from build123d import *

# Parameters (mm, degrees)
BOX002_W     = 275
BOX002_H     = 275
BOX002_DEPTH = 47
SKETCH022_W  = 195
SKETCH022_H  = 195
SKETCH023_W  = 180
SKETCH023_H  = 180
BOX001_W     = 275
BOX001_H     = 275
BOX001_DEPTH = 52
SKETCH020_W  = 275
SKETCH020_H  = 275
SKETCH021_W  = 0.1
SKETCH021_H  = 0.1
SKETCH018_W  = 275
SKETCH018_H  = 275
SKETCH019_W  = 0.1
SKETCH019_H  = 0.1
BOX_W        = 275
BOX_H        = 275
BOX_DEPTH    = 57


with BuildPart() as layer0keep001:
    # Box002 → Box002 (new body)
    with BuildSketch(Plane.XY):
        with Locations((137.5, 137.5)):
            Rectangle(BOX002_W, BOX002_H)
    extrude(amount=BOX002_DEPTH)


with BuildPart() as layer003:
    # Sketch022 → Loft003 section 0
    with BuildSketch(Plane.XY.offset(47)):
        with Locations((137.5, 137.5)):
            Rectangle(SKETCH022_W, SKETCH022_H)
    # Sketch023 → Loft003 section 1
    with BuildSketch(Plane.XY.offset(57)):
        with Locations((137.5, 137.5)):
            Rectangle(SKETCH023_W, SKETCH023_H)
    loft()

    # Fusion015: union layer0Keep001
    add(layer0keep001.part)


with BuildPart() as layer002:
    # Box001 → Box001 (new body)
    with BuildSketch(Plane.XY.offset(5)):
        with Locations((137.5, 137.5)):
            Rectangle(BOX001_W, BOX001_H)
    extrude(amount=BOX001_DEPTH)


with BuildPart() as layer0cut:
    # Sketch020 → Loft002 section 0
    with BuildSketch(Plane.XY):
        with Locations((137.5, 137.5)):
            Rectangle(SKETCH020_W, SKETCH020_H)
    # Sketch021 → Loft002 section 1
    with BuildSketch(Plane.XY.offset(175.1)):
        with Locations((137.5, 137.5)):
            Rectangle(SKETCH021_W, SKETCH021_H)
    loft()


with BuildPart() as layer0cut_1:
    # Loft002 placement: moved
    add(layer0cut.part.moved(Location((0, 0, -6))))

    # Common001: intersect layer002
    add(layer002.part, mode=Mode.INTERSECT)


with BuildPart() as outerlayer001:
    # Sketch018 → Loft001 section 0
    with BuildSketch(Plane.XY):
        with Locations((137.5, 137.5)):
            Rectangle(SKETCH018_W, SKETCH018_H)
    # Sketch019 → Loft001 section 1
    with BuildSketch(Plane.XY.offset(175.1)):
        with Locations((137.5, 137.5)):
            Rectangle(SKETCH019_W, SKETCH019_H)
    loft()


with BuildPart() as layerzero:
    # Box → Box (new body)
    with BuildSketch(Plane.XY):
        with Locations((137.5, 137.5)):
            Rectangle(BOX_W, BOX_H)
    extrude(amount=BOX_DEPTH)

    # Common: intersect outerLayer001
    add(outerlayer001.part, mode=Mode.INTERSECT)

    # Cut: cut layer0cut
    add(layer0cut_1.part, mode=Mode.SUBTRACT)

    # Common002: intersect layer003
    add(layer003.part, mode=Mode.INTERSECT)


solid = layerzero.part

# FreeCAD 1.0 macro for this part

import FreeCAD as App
import Part
import Sketcher

doc = App.newDocument("Part")
body = doc.addObject("PartDesign::Body", "Body")

sketch1 = body.newObject("Sketcher::SketchObject", "Sketch")
sketch1.AttachmentSupport = (doc.getObject("XY_Plane"), [""])
sketch1.MapMode = "FlatFace"
sketch1.addGeometry(Part.LineSegment(App.Vector(0, 275, 0), App.Vector(0, 0, 0)), False)
sketch1.addGeometry(Part.LineSegment(App.Vector(0, 0, 0), App.Vector(275, 0, 0)), False)
sketch1.addGeometry(Part.LineSegment(App.Vector(275, 0, 0), App.Vector(275, 275, 0)), False)
sketch1.addGeometry(Part.LineSegment(App.Vector(275, 275, 0), App.Vector(0, 275, 0)), False)
sketch1.addConstraint(Sketcher.Constraint("Coincident", 0, 2, 1, 1))
sketch1.addConstraint(Sketcher.Constraint("Coincident", 1, 2, 2, 1))
sketch1.addConstraint(Sketcher.Constraint("Coincident", 2, 2, 3, 1))
sketch1.addConstraint(Sketcher.Constraint("Coincident", 3, 2, 0, 1))
sketch1.addConstraint(Sketcher.Constraint("Vertical", 0))
sketch1.addConstraint(Sketcher.Constraint("Horizontal", 1))
sketch1.addConstraint(Sketcher.Constraint("Vertical", 2))
sketch1.addConstraint(Sketcher.Constraint("Horizontal", 3))
sketch1.addConstraint(Sketcher.Constraint("Coincident", 0, 2, -1, 1))
sketch1.addConstraint(Sketcher.Constraint("Equal", 3, 0))
sketch1.addConstraint(Sketcher.Constraint("DistanceX", 1, 1, 1, 2, 275.0))
pad1 = body.newObject("PartDesign::Pad", "Pad")
pad1.Profile = sketch1
pad1.Length = 47
body2 = doc.addObject("PartDesign::Body", "Body001")

sketch2 = body2.newObject("Sketcher::SketchObject", "Sketch001")
sketch2.AttachmentSupport = (doc.getObject("XY_Plane001"), [""])
sketch2.MapMode = "FlatFace"
sketch2.AttachmentOffset = App.Placement(App.Vector(0, 0, 47), App.Rotation())
sketch2.addGeometry(Part.LineSegment(App.Vector(40, 235, 0), App.Vector(40, 40, 0)), False)
sketch2.addGeometry(Part.LineSegment(App.Vector(40, 40, 0), App.Vector(235, 40, 0)), False)
sketch2.addGeometry(Part.LineSegment(App.Vector(235, 40, 0), App.Vector(235, 235, 0)), False)
sketch2.addGeometry(Part.LineSegment(App.Vector(235, 235, 0), App.Vector(40, 235, 0)), False)
sketch2.addConstraint(Sketcher.Constraint("Coincident", 0, 2, 1, 1))
sketch2.addConstraint(Sketcher.Constraint("Coincident", 1, 2, 2, 1))
sketch2.addConstraint(Sketcher.Constraint("Coincident", 2, 2, 3, 1))
sketch2.addConstraint(Sketcher.Constraint("Coincident", 3, 2, 0, 1))
sketch2.addConstraint(Sketcher.Constraint("Vertical", 0))
sketch2.addConstraint(Sketcher.Constraint("Horizontal", 1))
sketch2.addConstraint(Sketcher.Constraint("Vertical", 2))
sketch2.addConstraint(Sketcher.Constraint("Horizontal", 3))
sketch2.addConstraint(Sketcher.Constraint("Equal", 3, 0))
sketch2.addConstraint(Sketcher.Constraint("DistanceX", 1, 1, 1, 2, 195.0))
sketch2.addConstraint(Sketcher.Constraint("DistanceX", -1, 1, 0, 2, 40.0))
sketch2.addConstraint(Sketcher.Constraint("DistanceY", -1, 1, 0, 2, 40.0))

sketch3 = body2.newObject("Sketcher::SketchObject", "Sketch002")
sketch3.AttachmentSupport = (doc.getObject("XY_Plane001"), [""])
sketch3.MapMode = "FlatFace"
sketch3.AttachmentOffset = App.Placement(App.Vector(0, 0, 57), App.Rotation())
sketch3.addGeometry(Part.LineSegment(App.Vector(47.5, 227.5, 0), App.Vector(47.5, 47.5, 0)), False)
sketch3.addGeometry(Part.LineSegment(App.Vector(47.5, 47.5, 0), App.Vector(227.5, 47.5, 0)), False)
sketch3.addGeometry(Part.LineSegment(App.Vector(227.5, 47.5, 0), App.Vector(227.5, 227.5, 0)), False)
sketch3.addGeometry(Part.LineSegment(App.Vector(227.5, 227.5, 0), App.Vector(47.5, 227.5, 0)), False)
sketch3.addConstraint(Sketcher.Constraint("Coincident", 0, 2, 1, 1))
sketch3.addConstraint(Sketcher.Constraint("Coincident", 1, 2, 2, 1))
sketch3.addConstraint(Sketcher.Constraint("Coincident", 2, 2, 3, 1))
sketch3.addConstraint(Sketcher.Constraint("Coincident", 3, 2, 0, 1))
sketch3.addConstraint(Sketcher.Constraint("Vertical", 0))
sketch3.addConstraint(Sketcher.Constraint("Horizontal", 1))
sketch3.addConstraint(Sketcher.Constraint("Vertical", 2))
sketch3.addConstraint(Sketcher.Constraint("Horizontal", 3))
sketch3.addConstraint(Sketcher.Constraint("Equal", 3, 0))
sketch3.addConstraint(Sketcher.Constraint("DistanceX", 1, 1, 1, 2, 180.0))
sketch3.addConstraint(Sketcher.Constraint("DistanceX", -1, 1, 0, 2, 47.5))
sketch3.addConstraint(Sketcher.Constraint("DistanceY", -1, 1, 0, 2, 47.5))

additiveloft = body2.newObject("PartDesign::AdditiveLoft", "AdditiveLoft")
additiveloft.Profile = sketch2
additiveloft.Sections = [sketch3]
doc.recompute()

boolean = body2.newObject("PartDesign::Boolean", "Boolean")
boolean.Type = "Fuse"
boolean.addObjects([body])
body3 = doc.addObject("PartDesign::Body", "Body002")

sketch4 = body3.newObject("Sketcher::SketchObject", "Sketch003")
sketch4.AttachmentSupport = (doc.getObject("XY_Plane002"), [""])
sketch4.MapMode = "FlatFace"
sketch4.AttachmentOffset = App.Placement(App.Vector(0, 0, 5), App.Rotation())
sketch4.addGeometry(Part.LineSegment(App.Vector(0, 275, 0), App.Vector(0, 0, 0)), False)
sketch4.addGeometry(Part.LineSegment(App.Vector(0, 0, 0), App.Vector(275, 0, 0)), False)
sketch4.addGeometry(Part.LineSegment(App.Vector(275, 0, 0), App.Vector(275, 275, 0)), False)
sketch4.addGeometry(Part.LineSegment(App.Vector(275, 275, 0), App.Vector(0, 275, 0)), False)
sketch4.addConstraint(Sketcher.Constraint("Coincident", 0, 2, 1, 1))
sketch4.addConstraint(Sketcher.Constraint("Coincident", 1, 2, 2, 1))
sketch4.addConstraint(Sketcher.Constraint("Coincident", 2, 2, 3, 1))
sketch4.addConstraint(Sketcher.Constraint("Coincident", 3, 2, 0, 1))
sketch4.addConstraint(Sketcher.Constraint("Vertical", 0))
sketch4.addConstraint(Sketcher.Constraint("Horizontal", 1))
sketch4.addConstraint(Sketcher.Constraint("Vertical", 2))
sketch4.addConstraint(Sketcher.Constraint("Horizontal", 3))
sketch4.addConstraint(Sketcher.Constraint("Coincident", 0, 2, -1, 1))
sketch4.addConstraint(Sketcher.Constraint("Equal", 3, 0))
sketch4.addConstraint(Sketcher.Constraint("DistanceX", 1, 1, 1, 2, 275.0))
pad2 = body3.newObject("PartDesign::Pad", "Pad001")
pad2.Profile = sketch4
pad2.Length = 52
body4 = doc.addObject("PartDesign::Body", "Body003")

sketch5 = body4.newObject("Sketcher::SketchObject", "Sketch004")
sketch5.AttachmentSupport = (doc.getObject("XY_Plane003"), [""])
sketch5.MapMode = "FlatFace"
sketch5.addGeometry(Part.LineSegment(App.Vector(0, 275, 0), App.Vector(0, 0, 0)), False)
sketch5.addGeometry(Part.LineSegment(App.Vector(0, 0, 0), App.Vector(275, 0, 0)), False)
sketch5.addGeometry(Part.LineSegment(App.Vector(275, 0, 0), App.Vector(275, 275, 0)), False)
sketch5.addGeometry(Part.LineSegment(App.Vector(275, 275, 0), App.Vector(0, 275, 0)), False)
sketch5.addConstraint(Sketcher.Constraint("Coincident", 0, 2, 1, 1))
sketch5.addConstraint(Sketcher.Constraint("Coincident", 1, 2, 2, 1))
sketch5.addConstraint(Sketcher.Constraint("Coincident", 2, 2, 3, 1))
sketch5.addConstraint(Sketcher.Constraint("Coincident", 3, 2, 0, 1))
sketch5.addConstraint(Sketcher.Constraint("Vertical", 0))
sketch5.addConstraint(Sketcher.Constraint("Horizontal", 1))
sketch5.addConstraint(Sketcher.Constraint("Vertical", 2))
sketch5.addConstraint(Sketcher.Constraint("Horizontal", 3))
sketch5.addConstraint(Sketcher.Constraint("Coincident", 0, 2, -1, 1))
sketch5.addConstraint(Sketcher.Constraint("Equal", 3, 0))
sketch5.addConstraint(Sketcher.Constraint("DistanceX", 1, 1, 1, 2, 275.0))

sketch6 = body4.newObject("Sketcher::SketchObject", "Sketch005")
sketch6.AttachmentSupport = (doc.getObject("XY_Plane003"), [""])
sketch6.MapMode = "FlatFace"
sketch6.AttachmentOffset = App.Placement(App.Vector(0, 0, 175.1), App.Rotation())
sketch6.addGeometry(Part.LineSegment(App.Vector(137.45, 137.55, 0), App.Vector(137.45, 137.45, 0)), False)
sketch6.addGeometry(Part.LineSegment(App.Vector(137.45, 137.45, 0), App.Vector(137.55, 137.45, 0)), False)
sketch6.addGeometry(Part.LineSegment(App.Vector(137.55, 137.45, 0), App.Vector(137.55, 137.55, 0)), False)
sketch6.addGeometry(Part.LineSegment(App.Vector(137.55, 137.55, 0), App.Vector(137.45, 137.55, 0)), False)
sketch6.addConstraint(Sketcher.Constraint("Coincident", 0, 2, 1, 1))
sketch6.addConstraint(Sketcher.Constraint("Coincident", 1, 2, 2, 1))
sketch6.addConstraint(Sketcher.Constraint("Coincident", 2, 2, 3, 1))
sketch6.addConstraint(Sketcher.Constraint("Coincident", 3, 2, 0, 1))
sketch6.addConstraint(Sketcher.Constraint("Vertical", 0))
sketch6.addConstraint(Sketcher.Constraint("Horizontal", 1))
sketch6.addConstraint(Sketcher.Constraint("Vertical", 2))
sketch6.addConstraint(Sketcher.Constraint("Horizontal", 3))
sketch6.addConstraint(Sketcher.Constraint("Equal", 3, 0))
sketch6.addConstraint(Sketcher.Constraint("DistanceX", 1, 1, 1, 2, 0.1))
sketch6.addConstraint(Sketcher.Constraint("DistanceX", -1, 1, 0, 2, 137.45))
sketch6.addConstraint(Sketcher.Constraint("DistanceY", -1, 1, 0, 2, 137.45))

additiveloft2 = body4.newObject("PartDesign::AdditiveLoft", "AdditiveLoft001")
additiveloft2.Profile = sketch5
additiveloft2.Sections = [sketch6]
body5 = doc.addObject("PartDesign::Body", "Body004")
doc.recompute()

body4.Placement = App.Placement(App.Vector(0, 0, -6), App.Rotation(App.Vector(0, 0, 1), 0))
boolean2 = body5.newObject("PartDesign::Boolean", "Boolean001")
boolean2.Type = "Fuse"
boolean2.addObjects([body4])
doc.recompute()

boolean3 = body5.newObject("PartDesign::Boolean", "Boolean002")
boolean3.Type = "Common"
boolean3.addObjects([body3])
body6 = doc.addObject("PartDesign::Body", "Body005")

sketch7 = body6.newObject("Sketcher::SketchObject", "Sketch006")
sketch7.AttachmentSupport = (doc.getObject("XY_Plane005"), [""])
sketch7.MapMode = "FlatFace"
sketch7.addGeometry(Part.LineSegment(App.Vector(0, 275, 0), App.Vector(0, 0, 0)), False)
sketch7.addGeometry(Part.LineSegment(App.Vector(0, 0, 0), App.Vector(275, 0, 0)), False)
sketch7.addGeometry(Part.LineSegment(App.Vector(275, 0, 0), App.Vector(275, 275, 0)), False)
sketch7.addGeometry(Part.LineSegment(App.Vector(275, 275, 0), App.Vector(0, 275, 0)), False)
sketch7.addConstraint(Sketcher.Constraint("Coincident", 0, 2, 1, 1))
sketch7.addConstraint(Sketcher.Constraint("Coincident", 1, 2, 2, 1))
sketch7.addConstraint(Sketcher.Constraint("Coincident", 2, 2, 3, 1))
sketch7.addConstraint(Sketcher.Constraint("Coincident", 3, 2, 0, 1))
sketch7.addConstraint(Sketcher.Constraint("Vertical", 0))
sketch7.addConstraint(Sketcher.Constraint("Horizontal", 1))
sketch7.addConstraint(Sketcher.Constraint("Vertical", 2))
sketch7.addConstraint(Sketcher.Constraint("Horizontal", 3))
sketch7.addConstraint(Sketcher.Constraint("Coincident", 0, 2, -1, 1))
sketch7.addConstraint(Sketcher.Constraint("Equal", 3, 0))
sketch7.addConstraint(Sketcher.Constraint("DistanceX", 1, 1, 1, 2, 275.0))

sketch8 = body6.newObject("Sketcher::SketchObject", "Sketch007")
sketch8.AttachmentSupport = (doc.getObject("XY_Plane005"), [""])
sketch8.MapMode = "FlatFace"
sketch8.AttachmentOffset = App.Placement(App.Vector(0, 0, 175.1), App.Rotation())
sketch8.addGeometry(Part.LineSegment(App.Vector(137.45, 137.55, 0), App.Vector(137.45, 137.45, 0)), False)
sketch8.addGeometry(Part.LineSegment(App.Vector(137.45, 137.45, 0), App.Vector(137.55, 137.45, 0)), False)
sketch8.addGeometry(Part.LineSegment(App.Vector(137.55, 137.45, 0), App.Vector(137.55, 137.55, 0)), False)
sketch8.addGeometry(Part.LineSegment(App.Vector(137.55, 137.55, 0), App.Vector(137.45, 137.55, 0)), False)
sketch8.addConstraint(Sketcher.Constraint("Coincident", 0, 2, 1, 1))
sketch8.addConstraint(Sketcher.Constraint("Coincident", 1, 2, 2, 1))
sketch8.addConstraint(Sketcher.Constraint("Coincident", 2, 2, 3, 1))
sketch8.addConstraint(Sketcher.Constraint("Coincident", 3, 2, 0, 1))
sketch8.addConstraint(Sketcher.Constraint("Vertical", 0))
sketch8.addConstraint(Sketcher.Constraint("Horizontal", 1))
sketch8.addConstraint(Sketcher.Constraint("Vertical", 2))
sketch8.addConstraint(Sketcher.Constraint("Horizontal", 3))
sketch8.addConstraint(Sketcher.Constraint("Equal", 3, 0))
sketch8.addConstraint(Sketcher.Constraint("DistanceX", 1, 1, 1, 2, 0.1))
sketch8.addConstraint(Sketcher.Constraint("DistanceX", -1, 1, 0, 2, 137.45))
sketch8.addConstraint(Sketcher.Constraint("DistanceY", -1, 1, 0, 2, 137.45))

additiveloft3 = body6.newObject("PartDesign::AdditiveLoft", "AdditiveLoft002")
additiveloft3.Profile = sketch7
additiveloft3.Sections = [sketch8]
body7 = doc.addObject("PartDesign::Body", "Body006")

sketch9 = body7.newObject("Sketcher::SketchObject", "Sketch008")
sketch9.AttachmentSupport = (doc.getObject("XY_Plane006"), [""])
sketch9.MapMode = "FlatFace"
sketch9.addGeometry(Part.LineSegment(App.Vector(0, 275, 0), App.Vector(0, 0, 0)), False)
sketch9.addGeometry(Part.LineSegment(App.Vector(0, 0, 0), App.Vector(275, 0, 0)), False)
sketch9.addGeometry(Part.LineSegment(App.Vector(275, 0, 0), App.Vector(275, 275, 0)), False)
sketch9.addGeometry(Part.LineSegment(App.Vector(275, 275, 0), App.Vector(0, 275, 0)), False)
sketch9.addConstraint(Sketcher.Constraint("Coincident", 0, 2, 1, 1))
sketch9.addConstraint(Sketcher.Constraint("Coincident", 1, 2, 2, 1))
sketch9.addConstraint(Sketcher.Constraint("Coincident", 2, 2, 3, 1))
sketch9.addConstraint(Sketcher.Constraint("Coincident", 3, 2, 0, 1))
sketch9.addConstraint(Sketcher.Constraint("Vertical", 0))
sketch9.addConstraint(Sketcher.Constraint("Horizontal", 1))
sketch9.addConstraint(Sketcher.Constraint("Vertical", 2))
sketch9.addConstraint(Sketcher.Constraint("Horizontal", 3))
sketch9.addConstraint(Sketcher.Constraint("Coincident", 0, 2, -1, 1))
sketch9.addConstraint(Sketcher.Constraint("Equal", 3, 0))
sketch9.addConstraint(Sketcher.Constraint("DistanceX", 1, 1, 1, 2, 275.0))
pad3 = body7.newObject("PartDesign::Pad", "Pad002")
pad3.Profile = sketch9
pad3.Length = 57
doc.recompute()

boolean4 = body7.newObject("PartDesign::Boolean", "Boolean003")
boolean4.Type = "Common"
boolean4.addObjects([body6])
doc.recompute()

boolean5 = body7.newObject("PartDesign::Boolean", "Boolean004")
boolean5.Type = "Cut"
boolean5.addObjects([body5])
doc.recompute()

boolean6 = body7.newObject("PartDesign::Boolean", "Boolean005")
boolean6.Type = "Common"
boolean6.addObjects([body2])

doc.recompute()
